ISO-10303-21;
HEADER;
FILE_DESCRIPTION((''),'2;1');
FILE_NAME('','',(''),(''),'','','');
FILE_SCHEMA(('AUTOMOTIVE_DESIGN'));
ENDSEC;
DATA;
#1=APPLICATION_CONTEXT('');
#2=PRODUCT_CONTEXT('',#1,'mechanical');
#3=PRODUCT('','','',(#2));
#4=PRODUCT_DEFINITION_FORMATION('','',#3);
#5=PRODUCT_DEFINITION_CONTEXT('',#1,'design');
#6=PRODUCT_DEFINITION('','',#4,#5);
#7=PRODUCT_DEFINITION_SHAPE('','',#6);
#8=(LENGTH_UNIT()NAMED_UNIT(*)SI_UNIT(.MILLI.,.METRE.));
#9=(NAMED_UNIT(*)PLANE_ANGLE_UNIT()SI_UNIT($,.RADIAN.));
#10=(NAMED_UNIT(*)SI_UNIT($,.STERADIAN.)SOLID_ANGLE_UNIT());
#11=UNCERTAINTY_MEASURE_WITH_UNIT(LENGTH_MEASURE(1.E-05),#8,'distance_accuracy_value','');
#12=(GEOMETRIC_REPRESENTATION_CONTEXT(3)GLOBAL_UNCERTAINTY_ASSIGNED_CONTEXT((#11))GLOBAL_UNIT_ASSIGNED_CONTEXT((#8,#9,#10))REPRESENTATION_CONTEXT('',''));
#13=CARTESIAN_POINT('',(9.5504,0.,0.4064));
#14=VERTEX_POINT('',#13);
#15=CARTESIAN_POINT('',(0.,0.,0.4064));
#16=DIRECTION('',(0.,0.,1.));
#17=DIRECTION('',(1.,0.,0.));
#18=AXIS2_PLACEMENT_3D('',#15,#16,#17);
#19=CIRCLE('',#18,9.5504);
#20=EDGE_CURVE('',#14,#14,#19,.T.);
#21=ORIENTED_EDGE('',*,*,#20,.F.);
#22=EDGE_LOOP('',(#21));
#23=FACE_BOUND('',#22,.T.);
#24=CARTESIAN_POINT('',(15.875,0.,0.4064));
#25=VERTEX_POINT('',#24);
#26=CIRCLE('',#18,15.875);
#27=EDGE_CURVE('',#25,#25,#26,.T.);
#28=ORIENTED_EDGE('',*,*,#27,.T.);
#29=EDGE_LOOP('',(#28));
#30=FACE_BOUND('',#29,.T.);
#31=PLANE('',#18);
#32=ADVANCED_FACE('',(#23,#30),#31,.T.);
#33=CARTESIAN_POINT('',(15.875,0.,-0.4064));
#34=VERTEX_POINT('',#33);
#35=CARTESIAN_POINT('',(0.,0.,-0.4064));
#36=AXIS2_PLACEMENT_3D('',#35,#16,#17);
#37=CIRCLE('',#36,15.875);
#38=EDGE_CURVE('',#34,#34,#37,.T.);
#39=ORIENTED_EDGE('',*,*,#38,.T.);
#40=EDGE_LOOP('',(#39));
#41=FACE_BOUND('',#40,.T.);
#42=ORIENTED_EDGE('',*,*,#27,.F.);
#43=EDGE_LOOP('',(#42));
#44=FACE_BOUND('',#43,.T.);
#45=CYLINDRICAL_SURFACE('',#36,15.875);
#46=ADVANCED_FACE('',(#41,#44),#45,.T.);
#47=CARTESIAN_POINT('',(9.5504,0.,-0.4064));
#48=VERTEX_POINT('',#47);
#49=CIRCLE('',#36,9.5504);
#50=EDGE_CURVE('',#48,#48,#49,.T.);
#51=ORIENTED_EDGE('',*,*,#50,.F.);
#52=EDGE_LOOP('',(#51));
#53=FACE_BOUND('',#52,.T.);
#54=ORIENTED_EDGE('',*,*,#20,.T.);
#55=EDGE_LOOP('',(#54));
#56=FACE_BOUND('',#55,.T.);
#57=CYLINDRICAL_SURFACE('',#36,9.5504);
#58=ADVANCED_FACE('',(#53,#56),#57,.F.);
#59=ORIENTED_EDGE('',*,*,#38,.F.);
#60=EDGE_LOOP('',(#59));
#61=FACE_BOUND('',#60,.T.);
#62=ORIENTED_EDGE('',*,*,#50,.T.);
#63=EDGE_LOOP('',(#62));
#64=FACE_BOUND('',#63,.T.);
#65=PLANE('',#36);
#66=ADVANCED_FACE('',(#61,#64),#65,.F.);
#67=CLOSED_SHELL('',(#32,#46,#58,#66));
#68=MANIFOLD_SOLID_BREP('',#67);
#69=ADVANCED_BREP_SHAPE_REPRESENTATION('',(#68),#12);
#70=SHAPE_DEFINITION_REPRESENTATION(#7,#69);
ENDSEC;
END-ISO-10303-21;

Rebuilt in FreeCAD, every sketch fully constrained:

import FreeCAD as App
import Part
import Sketcher
from FreeCAD import Vector
Q = App.Units.Quantity

doc = App.newDocument("Part")
body = doc.addObject("PartDesign::Body", "Body")

# Sketch on XY plane
sketch1 = body.newObject("Sketcher::SketchObject", "Sketch")
sketch1.AttachmentSupport = (doc.getObject("XY_Plane"), [""])
sketch1.MapMode = "FlatFace"
sketch1.addGeometry([
    Part.Circle(Vector(0, 0, 0), Vector(0, 0, 1), 16),
    Part.Circle(Vector(0, 0, 0), Vector(0, 0, 1), 10),
], False)
sketch1.addConstraint([
    Sketcher.Constraint("Coincident", 0, 3, -1, 1),
    Sketcher.Constraint("Coincident", 1, 3, -1, 1),
    Sketcher.Constraint("Diameter", 0, Q("1.25 in")),
    Sketcher.Constraint("Diameter", 1, Q("0.752 in")),
])
pad1 = body.newObject("PartDesign::Pad", "Pad")
pad1.Profile = sketch1
pad1.Type = "TwoLengths"
pad1.Length = Q("0.016 in")
pad1.Length2 = Q("0.016 in")

doc.recompute()
